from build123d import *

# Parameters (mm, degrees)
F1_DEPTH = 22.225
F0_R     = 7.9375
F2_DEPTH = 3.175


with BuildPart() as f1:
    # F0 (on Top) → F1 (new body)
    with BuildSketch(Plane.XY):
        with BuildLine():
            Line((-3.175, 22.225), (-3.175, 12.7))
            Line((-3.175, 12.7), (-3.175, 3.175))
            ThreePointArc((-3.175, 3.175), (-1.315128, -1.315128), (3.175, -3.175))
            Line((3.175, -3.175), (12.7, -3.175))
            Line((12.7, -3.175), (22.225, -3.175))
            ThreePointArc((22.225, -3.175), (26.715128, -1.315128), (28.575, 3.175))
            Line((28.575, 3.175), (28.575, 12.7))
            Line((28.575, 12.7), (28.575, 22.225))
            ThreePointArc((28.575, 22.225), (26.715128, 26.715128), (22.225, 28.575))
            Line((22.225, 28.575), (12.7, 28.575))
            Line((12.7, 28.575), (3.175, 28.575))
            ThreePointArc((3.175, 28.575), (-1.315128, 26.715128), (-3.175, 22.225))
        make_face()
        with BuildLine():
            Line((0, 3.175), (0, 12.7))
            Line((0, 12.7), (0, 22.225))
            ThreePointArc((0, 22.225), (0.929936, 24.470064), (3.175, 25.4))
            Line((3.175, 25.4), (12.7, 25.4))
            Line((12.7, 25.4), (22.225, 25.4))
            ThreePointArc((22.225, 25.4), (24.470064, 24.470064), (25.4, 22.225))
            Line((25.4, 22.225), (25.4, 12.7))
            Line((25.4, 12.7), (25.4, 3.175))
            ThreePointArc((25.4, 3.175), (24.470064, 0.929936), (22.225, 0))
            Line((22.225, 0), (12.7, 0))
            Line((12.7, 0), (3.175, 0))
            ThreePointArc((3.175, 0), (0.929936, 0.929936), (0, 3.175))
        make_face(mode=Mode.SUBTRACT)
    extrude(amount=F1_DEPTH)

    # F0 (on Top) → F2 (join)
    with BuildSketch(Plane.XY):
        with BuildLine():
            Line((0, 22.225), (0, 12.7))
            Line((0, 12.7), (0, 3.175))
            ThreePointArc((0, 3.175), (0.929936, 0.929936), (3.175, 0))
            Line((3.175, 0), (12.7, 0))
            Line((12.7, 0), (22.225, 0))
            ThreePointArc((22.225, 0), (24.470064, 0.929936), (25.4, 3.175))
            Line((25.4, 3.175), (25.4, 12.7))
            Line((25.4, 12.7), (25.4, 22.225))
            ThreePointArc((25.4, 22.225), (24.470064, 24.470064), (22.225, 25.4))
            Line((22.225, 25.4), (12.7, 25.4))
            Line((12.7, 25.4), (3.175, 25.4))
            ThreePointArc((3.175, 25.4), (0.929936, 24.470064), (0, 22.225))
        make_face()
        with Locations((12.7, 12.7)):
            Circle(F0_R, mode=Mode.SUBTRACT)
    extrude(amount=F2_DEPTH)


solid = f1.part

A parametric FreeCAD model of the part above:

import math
import FreeCAD as App
import Part
import Sketcher

V = App.Vector
Q = App.Units.Quantity

doc = App.newDocument("Part")
body = doc.addObject("PartDesign::Body", "Body")

sketch1 = body.newObject("Sketcher::SketchObject", "Sketch")
sketch1.AttachmentSupport = (doc.getObject("XY_Plane"), [""])
sketch1.MapMode = "FlatFace"
sketch1.addGeometry(Part.LineSegment(V(-3.2, 22.2, 0), V(-3.2, 3.2, 0)), False)
sketch1.addGeometry(Part.ArcOfCircle(Part.Circle(V(3.2, 3.2, 0), V(0, 0, 1), 6.4), math.radians(-180), math.radians(-90)), False)
sketch1.addGeometry(Part.LineSegment(V(3.2, -3.2, 0), V(22.2, -3.2, 0)), False)
sketch1.addGeometry(Part.ArcOfCircle(Part.Circle(V(22.2, 3.2, 0), V(0, 0, 1), 6.4), math.radians(-90), math.radians(0)), False)
sketch1.addGeometry(Part.LineSegment(V(28.6, 3.2, 0), V(28.6, 22.2, 0)), False)
sketch1.addGeometry(Part.ArcOfCircle(Part.Circle(V(22.2, 22.2, 0), V(0, 0, 1), 6.4), math.radians(0), math.radians(90)), False)
sketch1.addGeometry(Part.LineSegment(V(22.2, 28.6, 0), V(3.2, 28.6, 0)), False)
sketch1.addGeometry(Part.ArcOfCircle(Part.Circle(V(3.2, 22.2, 0), V(0, 0, 1), 6.4), math.radians(90), math.radians(180)), False)
sketch1.addGeometry(Part.ArcOfCircle(Part.Circle(V(3.2, 3.2, 0), V(0, 0, 1), 3.2), math.radians(-180), math.radians(-90)), False)
sketch1.addGeometry(Part.LineSegment(V(0, 3.2, 0), V(0, 22.2, 0)), False)
sketch1.addGeometry(Part.ArcOfCircle(Part.Circle(V(3.2, 22.2, 0), V(0, 0, 1), 3.2), math.radians(90), math.radians(180)), False)
sketch1.addGeometry(Part.LineSegment(V(3.2, 25.4, 0), V(22.2, 25.4, 0)), False)
sketch1.addGeometry(Part.ArcOfCircle(Part.Circle(V(22.2, 22.2, 0), V(0, 0, 1), 3.2), math.radians(0), math.radians(90)), False)
sketch1.addGeometry(Part.LineSegment(V(25.4, 22.2, 0), V(25.4, 3.2, 0)), False)
sketch1.addGeometry(Part.ArcOfCircle(Part.Circle(V(22.2, 3.2, 0), V(0, 0, 1), 3.2), math.radians(-90), math.radians(0)), False)
sketch1.addGeometry(Part.LineSegment(V(22.2, 0, 0), V(3.2, 0, 0)), False)
sketch1.addConstraint(Sketcher.Constraint("Tangent", 0, 2, 1, 1))
sketch1.addConstraint(Sketcher.Constraint("Tangent", 1, 2, 2, 1))
sketch1.addConstraint(Sketcher.Constraint("Tangent", 2, 2, 3, 1))
sketch1.addConstraint(Sketcher.Constraint("Tangent", 3, 2, 4, 1))
sketch1.addConstraint(Sketcher.Constraint("Tangent", 4, 2, 5, 1))
sketch1.addConstraint(Sketcher.Constraint("Tangent", 5, 2, 6, 1))
sketch1.addConstraint(Sketcher.Constraint("Tangent", 6, 2, 7, 1))
sketch1.addConstraint(Sketcher.Constraint("Tangent", 7, 2, 0, 1))
sketch1.addConstraint(Sketcher.Constraint("Tangent", 8, 1, 9, 1))
sketch1.addConstraint(Sketcher.Constraint("Tangent", 9, 2, 10, 2))
sketch1.addConstraint(Sketcher.Constraint("Tangent", 10, 1, 11, 1))
sketch1.addConstraint(Sketcher.Constraint("Tangent", 11, 2, 12, 2))
sketch1.addConstraint(Sketcher.Constraint("Tangent", 12, 1, 13, 1))
sketch1.addConstraint(Sketcher.Constraint("Tangent", 13, 2, 14, 2))
sketch1.addConstraint(Sketcher.Constraint("Tangent", 14, 1, 15, 1))
sketch1.addConstraint(Sketcher.Constraint("Tangent", 15, 2, 8, 2))
sketch1.addConstraint(Sketcher.Constraint("Vertical", 0))
sketch1.addConstraint(Sketcher.Constraint("Horizontal", 2))
sketch1.addConstraint(Sketcher.Constraint("Vertical", 4))
sketch1.addConstraint(Sketcher.Constraint("Horizontal", 6))
sketch1.addConstraint(Sketcher.Constraint("Vertical", 9))
sketch1.addConstraint(Sketcher.Constraint("Horizontal", 11))
sketch1.addConstraint(Sketcher.Constraint("Vertical", 13))
sketch1.addConstraint(Sketcher.Constraint("Horizontal", 15))
sketch1.addConstraint(Sketcher.Constraint("Coincident", 8, 3, 1, 3))
sketch1.addConstraint(Sketcher.Constraint("Coincident", 10, 3, 7, 3))
sketch1.addConstraint(Sketcher.Constraint("Coincident", 12, 3, 5, 3))
sketch1.addConstraint(Sketcher.Constraint("Equal", 1, 3))
sketch1.addConstraint(Sketcher.Constraint("Equal", 3, 5))
sketch1.addConstraint(Sketcher.Constraint("Equal", 5, 7))
sketch1.addConstraint(Sketcher.Constraint("Equal", 12, 14))
sketch1.addConstraint(Sketcher.Constraint("Symmetric", 0, 2, 1, 2, -1, 1))
sketch1.addConstraint(Sketcher.Constraint("PointOnObject", 8, 1, -2))
sketch1.addConstraint(Sketcher.Constraint("Equal", 15, 0))
sketch1.addConstraint(Sketcher.Constraint("Radius", 1, Q("0.25 in")))
sketch1.addConstraint(Sketcher.Constraint("DistanceY", -1, 1, 10, 1, Q("1 in")))
pad1 = body.newObject("PartDesign::Pad", "Pad")
pad1.Profile = sketch1
pad1.Length = Q("0.875 in")

sketch2 = body.newObject("Sketcher::SketchObject", "Sketch001")
sketch2.AttachmentSupport = (doc.getObject("XY_Plane"), [""])
sketch2.MapMode = "FlatFace"
sketch2.addGeometry(Part.LineSegment(V(0, 22.2, 0), V(0, 3.2, 0)), False)
sketch2.addGeometry(Part.ArcOfCircle(Part.Circle(V(3.2, 3.2, 0), V(0, 0, 1), 3.2), math.radians(-180), math.radians(-90)), False)
sketch2.addGeometry(Part.LineSegment(V(3.2, 0, 0), V(22.2, 0, 0)), False)
sketch2.addGeometry(Part.ArcOfCircle(Part.Circle(V(22.2, 3.2, 0), V(0, 0, 1), 3.2), math.radians(-90), math.radians(0)), False)
sketch2.addGeometry(Part.LineSegment(V(25.4, 3.2, 0), V(25.4, 22.2, 0)), False)
sketch2.addGeometry(Part.ArcOfCircle(Part.Circle(V(22.2, 22.2, 0), V(0, 0, 1), 3.2), math.radians(0), math.radians(90)), False)
sketch2.addGeometry(Part.LineSegment(V(22.2, 25.4, 0), V(3.2, 25.4, 0)), False)
sketch2.addGeometry(Part.ArcOfCircle(Part.Circle(V(3.2, 22.2, 0), V(0, 0, 1), 3.2), math.radians(90), math.radians(180)), False)
sketch2.addGeometry(Part.Circle(V(12.7, 12.7, 0), V(0, 0, 1), 7.9), False)
sketch2.addConstraint(Sketcher.Constraint("Tangent", 0, 2, 1, 1))
sketch2.addConstraint(Sketcher.Constraint("Tangent", 1, 2, 2, 1))
sketch2.addConstraint(Sketcher.Constraint("Tangent", 2, 2, 3, 1))
sketch2.addConstraint(Sketcher.Constraint("Tangent", 3, 2, 4, 1))
sketch2.addConstraint(Sketcher.Constraint("Tangent", 4, 2, 5, 1))
sketch2.addConstraint(Sketcher.Constraint("Tangent", 5, 2, 6, 1))
sketch2.addConstraint(Sketcher.Constraint("Tangent", 6, 2, 7, 1))
sketch2.addConstraint(Sketcher.Constraint("Tangent", 7, 2, 0, 1))
sketch2.addConstraint(Sketcher.Constraint("Vertical", 0))
sketch2.addConstraint(Sketcher.Constraint("Horizontal", 2))
sketch2.addConstraint(Sketcher.Constraint("Vertical", 4))
sketch2.addConstraint(Sketcher.Constraint("Horizontal", 6))
sketch2.addConstraint(Sketcher.Constraint("Equal", 1, 3))
sketch2.addConstraint(Sketcher.Constraint("Equal", 3, 5))
sketch2.addConstraint(Sketcher.Constraint("Equal", 5, 7))
sketch2.addConstraint(Sketcher.Constraint("PointOnObject", 0, 2, -2))
sketch2.addConstraint(Sketcher.Constraint("PointOnObject", 1, 2, -1))
sketch2.addConstraint(Sketcher.Constraint("Equal", 6, 0))
sketch2.addConstraint(Sketcher.Constraint("Diameter", 8, Q("0.625 in")))
sketch2.addConstraint(Sketcher.Constraint("DistanceX", -1, 1, 3, 2, Q("1 in")))
sketch2.addConstraint(Sketcher.Constraint("Radius", 1, Q("0.125 in")))
sketch2.addConstraint(Sketcher.Constraint("DistanceX", -1, 1, 8, 3, Q("0.5 in")))
sketch2.addConstraint(Sketcher.Constraint("DistanceY", -1, 1, 8, 3, Q("0.5 in")))
pad2 = body.newObject("PartDesign::Pad", "Pad001")
pad2.Profile = sketch2
pad2.Length = Q("0.125 in")

doc.recompute()
